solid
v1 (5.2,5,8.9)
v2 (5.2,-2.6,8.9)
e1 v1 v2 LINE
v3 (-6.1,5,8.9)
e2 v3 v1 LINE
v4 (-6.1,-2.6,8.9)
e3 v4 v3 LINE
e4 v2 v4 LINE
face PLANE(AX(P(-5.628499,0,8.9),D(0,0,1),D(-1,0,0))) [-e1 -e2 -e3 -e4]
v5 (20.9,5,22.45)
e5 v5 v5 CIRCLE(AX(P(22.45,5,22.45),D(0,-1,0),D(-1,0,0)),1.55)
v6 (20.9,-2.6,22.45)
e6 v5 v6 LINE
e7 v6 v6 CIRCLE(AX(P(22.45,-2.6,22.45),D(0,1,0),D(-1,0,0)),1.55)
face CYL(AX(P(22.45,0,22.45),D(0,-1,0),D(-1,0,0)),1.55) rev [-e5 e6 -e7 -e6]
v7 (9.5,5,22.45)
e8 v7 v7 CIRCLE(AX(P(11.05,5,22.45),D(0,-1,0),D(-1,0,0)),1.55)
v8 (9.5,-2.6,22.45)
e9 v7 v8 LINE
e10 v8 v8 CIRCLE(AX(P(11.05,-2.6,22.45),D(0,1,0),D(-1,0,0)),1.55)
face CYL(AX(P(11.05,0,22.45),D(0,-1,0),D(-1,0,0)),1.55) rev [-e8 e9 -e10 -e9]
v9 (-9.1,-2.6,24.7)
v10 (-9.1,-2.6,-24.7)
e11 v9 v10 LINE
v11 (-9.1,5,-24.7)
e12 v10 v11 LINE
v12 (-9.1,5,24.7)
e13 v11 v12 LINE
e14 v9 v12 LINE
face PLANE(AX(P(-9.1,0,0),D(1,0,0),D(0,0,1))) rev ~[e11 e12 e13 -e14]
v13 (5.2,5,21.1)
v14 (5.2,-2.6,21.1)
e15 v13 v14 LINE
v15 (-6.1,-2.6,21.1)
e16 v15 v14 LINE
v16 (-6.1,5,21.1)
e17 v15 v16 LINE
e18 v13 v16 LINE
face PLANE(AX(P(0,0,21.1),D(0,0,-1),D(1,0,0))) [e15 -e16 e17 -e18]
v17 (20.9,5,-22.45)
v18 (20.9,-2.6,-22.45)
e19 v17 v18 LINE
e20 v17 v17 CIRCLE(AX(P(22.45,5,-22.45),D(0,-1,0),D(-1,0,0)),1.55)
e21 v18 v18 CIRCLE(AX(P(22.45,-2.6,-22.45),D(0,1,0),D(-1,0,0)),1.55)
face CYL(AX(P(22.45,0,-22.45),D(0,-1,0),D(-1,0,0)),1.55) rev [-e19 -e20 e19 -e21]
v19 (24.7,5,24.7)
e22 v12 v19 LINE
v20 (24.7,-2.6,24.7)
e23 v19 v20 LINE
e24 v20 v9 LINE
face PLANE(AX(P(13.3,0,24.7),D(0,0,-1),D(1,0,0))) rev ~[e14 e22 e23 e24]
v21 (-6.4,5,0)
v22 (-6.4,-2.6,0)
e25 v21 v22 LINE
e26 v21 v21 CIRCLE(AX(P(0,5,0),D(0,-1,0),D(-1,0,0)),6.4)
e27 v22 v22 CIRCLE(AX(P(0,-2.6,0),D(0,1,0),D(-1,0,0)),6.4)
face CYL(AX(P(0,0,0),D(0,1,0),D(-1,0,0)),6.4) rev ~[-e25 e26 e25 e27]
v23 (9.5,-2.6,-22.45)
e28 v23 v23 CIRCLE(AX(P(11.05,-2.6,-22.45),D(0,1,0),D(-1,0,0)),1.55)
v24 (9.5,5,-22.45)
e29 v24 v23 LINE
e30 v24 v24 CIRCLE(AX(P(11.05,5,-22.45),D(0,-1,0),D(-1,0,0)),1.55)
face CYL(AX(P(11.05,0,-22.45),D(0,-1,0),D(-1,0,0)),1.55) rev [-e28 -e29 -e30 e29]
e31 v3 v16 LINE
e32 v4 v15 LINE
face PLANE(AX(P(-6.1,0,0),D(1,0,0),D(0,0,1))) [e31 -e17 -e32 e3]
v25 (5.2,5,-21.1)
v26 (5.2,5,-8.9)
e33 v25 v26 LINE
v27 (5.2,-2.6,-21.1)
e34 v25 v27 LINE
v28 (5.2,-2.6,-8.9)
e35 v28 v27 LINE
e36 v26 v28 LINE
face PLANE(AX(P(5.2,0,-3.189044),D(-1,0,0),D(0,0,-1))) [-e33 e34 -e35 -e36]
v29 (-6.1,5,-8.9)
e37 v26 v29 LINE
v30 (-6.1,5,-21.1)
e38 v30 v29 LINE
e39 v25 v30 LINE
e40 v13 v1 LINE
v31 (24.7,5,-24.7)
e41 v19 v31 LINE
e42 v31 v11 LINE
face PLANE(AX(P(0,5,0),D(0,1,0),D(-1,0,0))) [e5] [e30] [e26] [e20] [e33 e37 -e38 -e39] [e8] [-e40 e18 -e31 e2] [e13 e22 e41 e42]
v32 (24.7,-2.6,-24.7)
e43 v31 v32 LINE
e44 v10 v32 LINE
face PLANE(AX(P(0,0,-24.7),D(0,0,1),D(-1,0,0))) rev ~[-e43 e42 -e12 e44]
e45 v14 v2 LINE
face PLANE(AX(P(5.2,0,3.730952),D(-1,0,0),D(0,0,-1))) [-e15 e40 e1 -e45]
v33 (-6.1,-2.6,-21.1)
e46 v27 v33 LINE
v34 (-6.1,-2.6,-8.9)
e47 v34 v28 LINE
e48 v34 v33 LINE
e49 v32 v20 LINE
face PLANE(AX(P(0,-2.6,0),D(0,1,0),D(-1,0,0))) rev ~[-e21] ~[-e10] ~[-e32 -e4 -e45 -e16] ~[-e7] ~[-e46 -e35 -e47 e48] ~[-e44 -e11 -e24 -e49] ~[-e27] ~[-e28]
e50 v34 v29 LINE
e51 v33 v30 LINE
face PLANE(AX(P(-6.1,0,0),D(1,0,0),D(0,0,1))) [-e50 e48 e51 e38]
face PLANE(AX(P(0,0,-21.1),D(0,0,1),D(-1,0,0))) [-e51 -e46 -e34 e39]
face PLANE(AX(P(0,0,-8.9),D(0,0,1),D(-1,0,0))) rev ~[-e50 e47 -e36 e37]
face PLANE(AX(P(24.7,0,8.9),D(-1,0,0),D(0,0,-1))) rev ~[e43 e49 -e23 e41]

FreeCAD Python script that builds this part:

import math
import FreeCAD as App
import Part
import Sketcher
from FreeCAD import Vector
Q = App.Units.Quantity


def add_polygon(sketch, points):
    """Adds a closed chain of lines whose ends are joined by coincident constraints."""
    first, n = sketch.GeometryCount, len(points)
    for a, b in zip(points, points[1:] + points[:1]):
        sketch.addGeometry(Part.LineSegment(App.Vector(*a, 0), App.Vector(*b, 0)), False)
    for i in range(n):
        sketch.addConstraint(Sketcher.Constraint("Coincident", first + i, 2, first + (i + 1) % n, 1))

doc = App.newDocument("Part")
body = doc.addObject("PartDesign::Body", "Body")

sketch1 = body.newObject("Sketcher::SketchObject", "Sketch")
sketch1.AttachmentSupport = (doc.getObject("XZ_Plane"), [""])
sketch1.MapMode = "FlatFace"
sketch1.addGeometry([
    Part.LineSegment(Vector(5.2, 3.189044, 0), Vector(5.2, 24.146428, 0)),
    Part.ArcOfCircle(Part.Circle(Vector(0, 0, 0), Vector(0, 0, 1), 24.7), math.radians(-77.846803), math.radians(77.846803)),
    Part.LineSegment(Vector(5.2, -24.146428, 0), Vector(5.2, -3.189044, 0)),
    Part.ArcOfCircle(Part.Circle(Vector(0, 0, 0), Vector(0, 0, 1), 6.1), math.radians(-31.519859), math.radians(31.519859)),
], False)
sketch1.addConstraint([
    Sketcher.Constraint("Coincident", 0, 2, 1, 2),
    Sketcher.Constraint("Coincident", 1, 1, 2, 1),
    Sketcher.Constraint("Coincident", 2, 2, 3, 1),
    Sketcher.Constraint("Coincident", 3, 2, 0, 1),
    Sketcher.Constraint("Vertical", 0),
    Sketcher.Constraint("Vertical", 2),
    Sketcher.Constraint("Coincident", 1, 3, -1, 1),
    Sketcher.Constraint("Coincident", 3, 3, -1, 1),
    Sketcher.Constraint("Vertical", 0, 2, 1, 1),
    Sketcher.Constraint("Radius", 1, Q("24.7 mm")),
    Sketcher.Constraint("Radius", 3, Q("6.1 mm")),
    Sketcher.Constraint("DistanceX", -1, 1, 0, 2, Q("5.2 mm")),
])
pad1 = body.newObject("PartDesign::Pad", "Pad")
pad1.Profile = sketch1
pad1.Length = 5
pad1.Reversed = True

sketch2 = body.newObject("Sketcher::SketchObject", "Sketch001")
sketch2.AttachmentSupport = (doc.getObject("XZ_Plane"), [""])
sketch2.MapMode = "FlatFace"
sketch2.addGeometry([
    Part.ArcOfCircle(Part.Circle(Vector(0, 0, 0), Vector(0, 0, 1), 6.1), math.radians(180), math.radians(328.480141)),
    Part.LineSegment(Vector(5.2, -3.189044, 0), Vector(5.2, -8.9, 0)),
    Part.LineSegment(Vector(5.2, -8.9, 0), Vector(-6.1, -8.9, 0)),
    Part.LineSegment(Vector(-6.1, -8.9, 0), Vector(-6.1, 0, 0)),
    Part.LineSegment(Vector(-6.1, 0, 0), Vector(-6.1, 8.9, 0)),
    Part.LineSegment(Vector(-6.1, 8.9, 0), Vector(5.2, 8.9, 0)),
    Part.LineSegment(Vector(5.2, 8.9, 0), Vector(5.2, 3.189044, 0)),
    Part.ArcOfCircle(Part.Circle(Vector(0, 0, 0), Vector(0, 0, 1), 6.1), math.radians(31.519859), math.radians(180)),
    Part.LineSegment(Vector(-6.1, -21.1, 0), Vector(5.2, -21.1, 0)),
    Part.LineSegment(Vector(5.2, -21.1, 0), Vector(5.2, -24.146428, 0)),
    Part.ArcOfCircle(Part.Circle(Vector(0, 0, 0), Vector(0, 0, 1), 24.7), math.radians(-77.846803), math.radians(0)),
    Part.LineSegment(Vector(24.7, 0, 0), Vector(24.7, -24.7, 0)),
    Part.LineSegment(Vector(24.7, -24.7, 0), Vector(-6.1, -24.7, 0)),
    Part.LineSegment(Vector(-6.1, -24.7, 0), Vector(-6.1, -21.1, 0)),
    Part.LineSegment(Vector(-6.1, 21.1, 0), Vector(-6.1, 24.7, 0)),
    Part.LineSegment(Vector(-6.1, 24.7, 0), Vector(24.7, 24.7, 0)),
    Part.LineSegment(Vector(24.7, 24.7, 0), Vector(24.7, 0, 0)),
    Part.ArcOfCircle(Part.Circle(Vector(0, 0, 0), Vector(0, 0, 1), 24.7), math.radians(0), math.radians(77.846803)),
    Part.LineSegment(Vector(5.2, 24.146428, 0), Vector(5.2, 21.1, 0)),
    Part.LineSegment(Vector(5.2, 21.1, 0), Vector(-6.1, 21.1, 0)),
], False)
sketch2.addConstraint([
    Sketcher.Constraint("Coincident", 0, 2, 1, 1),
    Sketcher.Constraint("Coincident", 1, 2, 2, 1),
    Sketcher.Constraint("Coincident", 2, 2, 3, 1),
    Sketcher.Constraint("Tangent", 3, 2, 0, 1),
    Sketcher.Constraint("Coincident", 4, 2, 5, 1),
    Sketcher.Constraint("Coincident", 5, 2, 6, 1),
    Sketcher.Constraint("Coincident", 6, 2, 7, 1),
    Sketcher.Constraint("Tangent", 7, 2, 4, 1),
    Sketcher.Constraint("Coincident", 8, 2, 9, 1),
    Sketcher.Constraint("Coincident", 9, 2, 10, 1),
    Sketcher.Constraint("Tangent", 10, 2, 11, 1),
    Sketcher.Constraint("Coincident", 11, 2, 12, 1),
    Sketcher.Constraint("Coincident", 12, 2, 13, 1),
    Sketcher.Constraint("Coincident", 13, 2, 8, 1),
    Sketcher.Constraint("Coincident", 14, 2, 15, 1),
    Sketcher.Constraint("Coincident", 15, 2, 16, 1),
    Sketcher.Constraint("Tangent", 16, 2, 17, 1),
    Sketcher.Constraint("Coincident", 17, 2, 18, 1),
    Sketcher.Constraint("Coincident", 18, 2, 19, 1),
    Sketcher.Constraint("Coincident", 19, 2, 14, 1),
    Sketcher.Constraint("Vertical", 1),
    Sketcher.Constraint("Horizontal", 2),
    Sketcher.Constraint("Vertical", 3),
    Sketcher.Constraint("Vertical", 4),
    Sketcher.Constraint("Horizontal", 5),
    Sketcher.Constraint("Vertical", 6),
    Sketcher.Constraint("Horizontal", 8),
    Sketcher.Constraint("Vertical", 9),
    Sketcher.Constraint("Vertical", 11),
    Sketcher.Constraint("Horizontal", 12),
    Sketcher.Constraint("Vertical", 13),
    Sketcher.Constraint("Vertical", 14),
    Sketcher.Constraint("Horizontal", 15),
    Sketcher.Constraint("Vertical", 16),
    Sketcher.Constraint("Vertical", 18),
    Sketcher.Constraint("Horizontal", 19),
    Sketcher.Constraint("Coincident", 0, 3, -1, 1),
    Sketcher.Constraint("Coincident", 7, 3, -1, 1),
    Sketcher.Constraint("Coincident", 10, 3, -1, 1),
    Sketcher.Constraint("Coincident", 17, 3, -1, 1),
    Sketcher.Constraint("Equal", 0, 7),
    Sketcher.Constraint("Equal", 10, 17),
    Sketcher.Constraint("Symmetric", 1, 2, 5, 2, -1),
    Sketcher.Constraint("Symmetric", 12, 2, 14, 2, -1),
    Sketcher.Constraint("Symmetric", 8, 2, 18, 2, -1),
    Sketcher.Constraint("Vertical", 6, 2, 8, 2),
    Sketcher.Constraint("Vertical", 7, 2, 12, 2),
    Sketcher.Constraint("Radius", 0, Q("6.1 mm")),
    Sketcher.Constraint("Radius", 10, Q("24.7 mm")),
    Sketcher.Constraint("DistanceX", -1, 1, 0, 2, Q("5.2 mm")),
    Sketcher.Constraint("DistanceY", 8, 2, 1, 2, Q("12.2 mm")),
    Sketcher.Constraint("DistanceY", 3, 1, 3, 2, Q("8.9 mm")),
    Sketcher.Constraint("DistanceY", 11, 2, 11, 1, Q("24.7 mm")),
])
pad2 = body.newObject("PartDesign::Pad", "Pad001")
pad2.Profile = sketch2
pad2.Length = 5
pad2.Reversed = True

sketch3 = body.newObject("Sketcher::SketchObject", "Sketch002")
sketch3.AttachmentSupport = (doc.getObject("XZ_Plane"), [""])
sketch3.MapMode = "FlatFace"
add_polygon(sketch3, [(-6.1, -24.7), (-9.1, -24.7), (-9.1, 24.7), (-6.1, 24.7)])
sketch3.addConstraint([
    Sketcher.Constraint("Horizontal", 0),
    Sketcher.Constraint("Vertical", 1),
    Sketcher.Constraint("Horizontal", 2),
    Sketcher.Constraint("Vertical", 3),
    Sketcher.Constraint("DistanceX", 0, 2, 0, 1, Q("3 mm")),
    Sketcher.Constraint("DistanceY", 1, 1, 1, 2, Q("49.4 mm")),
    Sketcher.Constraint("DistanceX", 2, 2, -1, 1, Q("6.1 mm")),
    Sketcher.Constraint("DistanceY", 0, 2, -1, 1, Q("24.7 mm")),
])
pad3 = body.newObject("PartDesign::Pad", "Pad002")
pad3.Profile = sketch3
pad3.Length = 5
pad3.Reversed = True

sketch4 = body.newObject("Sketcher::SketchObject", "Sketch003")
sketch4.AttachmentSupport = (doc.getObject("XZ_Plane"), [""])
sketch4.MapMode = "FlatFace"
sketch4.addGeometry([
    Part.Circle(Vector(11.05, -22.45, 0), Vector(0, 0, 1), 1.55),
    Part.Circle(Vector(11.05, 22.45, 0), Vector(0, 0, 1), 1.55),
    Part.Circle(Vector(22.45, -22.45, 0), Vector(0, 0, 1), 1.55),
    Part.Circle(Vector(22.45, 22.45, 0), Vector(0, 0, 1), 1.55),
], False)
sketch4.addConstraint([
    Sketcher.Constraint("Equal", 0, 1),
    Sketcher.Constraint("Equal", 1, 2),
    Sketcher.Constraint("Equal", 2, 3),
    Sketcher.Constraint("Symmetric", 0, 3, 1, 3, -1),
    Sketcher.Constraint("Symmetric", 2, 3, 3, 3, -1),
    Sketcher.Constraint("Horizontal", 0, 3, 2, 3),
    Sketcher.Constraint("Diameter", 0, Q("3.1 mm")),
    Sketcher.Constraint("DistanceY", 0, 3, 1, 3, Q("44.9 mm")),
    Sketcher.Constraint("DistanceX", 0, 3, 2, 3, Q("11.4 mm")),
    Sketcher.Constraint("DistanceX", -1, 1, 0, 3, Q("11.05 mm")),
])
pocket1 = body.newObject("PartDesign::Pocket", "Pocket")
pocket1.Profile = sketch4
pocket1.Type = "ThroughAll"

sketch5 = body.newObject("Sketcher::SketchObject", "Sketch004")
sketch5.AttachmentSupport = (doc.getObject("XZ_Plane"), [""])
sketch5.MapMode = "FlatFace"
add_polygon(sketch5, [(-9.1, 24.7), (24.7, 24.7), (24.7, -24.7), (-9.1, -24.7)])
sketch5.addGeometry(Part.Circle(Vector(0, 0, 0), Vector(0, 0, 1), 6.1), False)
add_polygon(sketch5, [(-6.1, -8.9), (-6.1, -21.1), (5.2, -21.1), (5.2, -8.9)])
add_polygon(sketch5, [(-6.1, 8.9), (5.2, 8.9), (5.2, 21.1), (-6.1, 21.1)])
sketch5.addGeometry(Part.Circle(Vector(11.05, -22.45, 0), Vector(0, 0, 1), 1.55), False)
sketch5.addGeometry(Part.Circle(Vector(11.05, 22.45, 0), Vector(0, 0, 1), 1.55), False)
sketch5.addGeometry(Part.Circle(Vector(22.45, -22.45, 0), Vector(0, 0, 1), 1.55), False)
sketch5.addGeometry(Part.Circle(Vector(22.45, 22.45, 0), Vector(0, 0, 1), 1.55), False)
sketch5.addConstraint([
    Sketcher.Constraint("Horizontal", 0),
    Sketcher.Constraint("Vertical", 1),
    Sketcher.Constraint("Horizontal", 2),
    Sketcher.Constraint("Vertical", 3),
    Sketcher.Constraint("Vertical", 5),
    Sketcher.Constraint("Horizontal", 6),
    Sketcher.Constraint("Vertical", 7),
    Sketcher.Constraint("Horizontal", 8),
    Sketcher.Constraint("Horizontal", 9),
    Sketcher.Constraint("Vertical", 10),
    Sketcher.Constraint("Horizontal", 11),
    Sketcher.Constraint("Vertical", 12),
    Sketcher.Constraint("Coincident", 4, 3, -1, 1),
    Sketcher.Constraint("Equal", 13, 14),
    Sketcher.Constraint("Equal", 14, 15),
    Sketcher.Constraint("Equal", 15, 16),
    Sketcher.Constraint("Symmetric", 13, 3, 14, 3, -1),
    Sketcher.Constraint("Symmetric", 15, 3, 16, 3, -1),
    Sketcher.Constraint("Symmetric", 7, 2, 9, 2, -1),
    Sketcher.Constraint("Symmetric", 5, 2, 11, 2, -1),
    Sketcher.Constraint("Horizontal", 13, 3, 15, 3),
    Sketcher.Constraint("Diameter", 4, Q("12.2 mm")),
    Sketcher.Constraint("Diameter", 13, Q("3.1 mm")),
    Sketcher.Constraint("DistanceY", 1, 2, 1, 1, Q("49.4 mm")),
    Sketcher.Constraint("DistanceY", 5, 2, 5, 1, Q("12.2 mm")),
    Sketcher.Constraint("DistanceX", 2, 2, 5, 2, Q("3 mm")),
    Sketcher.Constraint("DistanceX", 5, 2, -1, 1, Q("6.1 mm")),
    Sketcher.Constraint("DistanceX", -1, 1, 6, 2, Q("5.2 mm")),
    Sketcher.Constraint("DistanceX", 0, 1, 0, 2, Q("33.8 mm")),
    Sketcher.Constraint("DistanceY", -1, 1, 0, 2, Q("24.7 mm")),
    Sketcher.Constraint("DistanceY", 5, 2, -1, 1, Q("21.1 mm")),
    Sketcher.Constraint("DistanceY", 13, 3, 14, 3, Q("44.9 mm")),
    Sketcher.Constraint("DistanceX", 13, 3, 15, 3, Q("11.4 mm")),
    Sketcher.Constraint("DistanceX", -1, 1, 13, 3, Q("11.05 mm")),
])
pad4 = body.newObject("PartDesign::Pad", "Pad003")
pad4.Profile = sketch5
pad4.Length = 2.6

sketch6 = body.newObject("Sketcher::SketchObject", "Sketch005")
sketch6.AttachmentSupport = (doc.getObject("XZ_Plane"), [""])
sketch6.MapMode = "FlatFace"
sketch6.addGeometry(Part.Circle(Vector(0, 0, 0), Vector(0, 0, 1), 6.4), False)
sketch6.addConstraint([
    Sketcher.Constraint("Coincident", 0, 3, -1, 1),
    Sketcher.Constraint("Diameter", 0, Q("12.8 mm")),
])
pocket2 = body.newObject("PartDesign::Pocket", "Pocket001")
pocket2.Profile = sketch6
pocket2.Length = 2.6
pocket2.Reversed = True

sketch7 = body.newObject("Sketcher::SketchObject", "Sketch006")
sketch7.AttachmentSupport = (doc.getObject("XZ_Plane"), [""])
sketch7.MapMode = "FlatFace"
sketch7.addGeometry(Part.Circle(Vector(0, 0, 0), Vector(0, 0, 1), 6.4), False)
sketch7.addConstraint([
    Sketcher.Constraint("Coincident", 0, 3, -1, 1),
    Sketcher.Constraint("Diameter", 0, Q("12.8 mm")),
])
pocket3 = body.newObject("PartDesign::Pocket", "Pocket002")
pocket3.Profile = sketch7
pocket3.Type = "ThroughAll"

doc.recompute()
